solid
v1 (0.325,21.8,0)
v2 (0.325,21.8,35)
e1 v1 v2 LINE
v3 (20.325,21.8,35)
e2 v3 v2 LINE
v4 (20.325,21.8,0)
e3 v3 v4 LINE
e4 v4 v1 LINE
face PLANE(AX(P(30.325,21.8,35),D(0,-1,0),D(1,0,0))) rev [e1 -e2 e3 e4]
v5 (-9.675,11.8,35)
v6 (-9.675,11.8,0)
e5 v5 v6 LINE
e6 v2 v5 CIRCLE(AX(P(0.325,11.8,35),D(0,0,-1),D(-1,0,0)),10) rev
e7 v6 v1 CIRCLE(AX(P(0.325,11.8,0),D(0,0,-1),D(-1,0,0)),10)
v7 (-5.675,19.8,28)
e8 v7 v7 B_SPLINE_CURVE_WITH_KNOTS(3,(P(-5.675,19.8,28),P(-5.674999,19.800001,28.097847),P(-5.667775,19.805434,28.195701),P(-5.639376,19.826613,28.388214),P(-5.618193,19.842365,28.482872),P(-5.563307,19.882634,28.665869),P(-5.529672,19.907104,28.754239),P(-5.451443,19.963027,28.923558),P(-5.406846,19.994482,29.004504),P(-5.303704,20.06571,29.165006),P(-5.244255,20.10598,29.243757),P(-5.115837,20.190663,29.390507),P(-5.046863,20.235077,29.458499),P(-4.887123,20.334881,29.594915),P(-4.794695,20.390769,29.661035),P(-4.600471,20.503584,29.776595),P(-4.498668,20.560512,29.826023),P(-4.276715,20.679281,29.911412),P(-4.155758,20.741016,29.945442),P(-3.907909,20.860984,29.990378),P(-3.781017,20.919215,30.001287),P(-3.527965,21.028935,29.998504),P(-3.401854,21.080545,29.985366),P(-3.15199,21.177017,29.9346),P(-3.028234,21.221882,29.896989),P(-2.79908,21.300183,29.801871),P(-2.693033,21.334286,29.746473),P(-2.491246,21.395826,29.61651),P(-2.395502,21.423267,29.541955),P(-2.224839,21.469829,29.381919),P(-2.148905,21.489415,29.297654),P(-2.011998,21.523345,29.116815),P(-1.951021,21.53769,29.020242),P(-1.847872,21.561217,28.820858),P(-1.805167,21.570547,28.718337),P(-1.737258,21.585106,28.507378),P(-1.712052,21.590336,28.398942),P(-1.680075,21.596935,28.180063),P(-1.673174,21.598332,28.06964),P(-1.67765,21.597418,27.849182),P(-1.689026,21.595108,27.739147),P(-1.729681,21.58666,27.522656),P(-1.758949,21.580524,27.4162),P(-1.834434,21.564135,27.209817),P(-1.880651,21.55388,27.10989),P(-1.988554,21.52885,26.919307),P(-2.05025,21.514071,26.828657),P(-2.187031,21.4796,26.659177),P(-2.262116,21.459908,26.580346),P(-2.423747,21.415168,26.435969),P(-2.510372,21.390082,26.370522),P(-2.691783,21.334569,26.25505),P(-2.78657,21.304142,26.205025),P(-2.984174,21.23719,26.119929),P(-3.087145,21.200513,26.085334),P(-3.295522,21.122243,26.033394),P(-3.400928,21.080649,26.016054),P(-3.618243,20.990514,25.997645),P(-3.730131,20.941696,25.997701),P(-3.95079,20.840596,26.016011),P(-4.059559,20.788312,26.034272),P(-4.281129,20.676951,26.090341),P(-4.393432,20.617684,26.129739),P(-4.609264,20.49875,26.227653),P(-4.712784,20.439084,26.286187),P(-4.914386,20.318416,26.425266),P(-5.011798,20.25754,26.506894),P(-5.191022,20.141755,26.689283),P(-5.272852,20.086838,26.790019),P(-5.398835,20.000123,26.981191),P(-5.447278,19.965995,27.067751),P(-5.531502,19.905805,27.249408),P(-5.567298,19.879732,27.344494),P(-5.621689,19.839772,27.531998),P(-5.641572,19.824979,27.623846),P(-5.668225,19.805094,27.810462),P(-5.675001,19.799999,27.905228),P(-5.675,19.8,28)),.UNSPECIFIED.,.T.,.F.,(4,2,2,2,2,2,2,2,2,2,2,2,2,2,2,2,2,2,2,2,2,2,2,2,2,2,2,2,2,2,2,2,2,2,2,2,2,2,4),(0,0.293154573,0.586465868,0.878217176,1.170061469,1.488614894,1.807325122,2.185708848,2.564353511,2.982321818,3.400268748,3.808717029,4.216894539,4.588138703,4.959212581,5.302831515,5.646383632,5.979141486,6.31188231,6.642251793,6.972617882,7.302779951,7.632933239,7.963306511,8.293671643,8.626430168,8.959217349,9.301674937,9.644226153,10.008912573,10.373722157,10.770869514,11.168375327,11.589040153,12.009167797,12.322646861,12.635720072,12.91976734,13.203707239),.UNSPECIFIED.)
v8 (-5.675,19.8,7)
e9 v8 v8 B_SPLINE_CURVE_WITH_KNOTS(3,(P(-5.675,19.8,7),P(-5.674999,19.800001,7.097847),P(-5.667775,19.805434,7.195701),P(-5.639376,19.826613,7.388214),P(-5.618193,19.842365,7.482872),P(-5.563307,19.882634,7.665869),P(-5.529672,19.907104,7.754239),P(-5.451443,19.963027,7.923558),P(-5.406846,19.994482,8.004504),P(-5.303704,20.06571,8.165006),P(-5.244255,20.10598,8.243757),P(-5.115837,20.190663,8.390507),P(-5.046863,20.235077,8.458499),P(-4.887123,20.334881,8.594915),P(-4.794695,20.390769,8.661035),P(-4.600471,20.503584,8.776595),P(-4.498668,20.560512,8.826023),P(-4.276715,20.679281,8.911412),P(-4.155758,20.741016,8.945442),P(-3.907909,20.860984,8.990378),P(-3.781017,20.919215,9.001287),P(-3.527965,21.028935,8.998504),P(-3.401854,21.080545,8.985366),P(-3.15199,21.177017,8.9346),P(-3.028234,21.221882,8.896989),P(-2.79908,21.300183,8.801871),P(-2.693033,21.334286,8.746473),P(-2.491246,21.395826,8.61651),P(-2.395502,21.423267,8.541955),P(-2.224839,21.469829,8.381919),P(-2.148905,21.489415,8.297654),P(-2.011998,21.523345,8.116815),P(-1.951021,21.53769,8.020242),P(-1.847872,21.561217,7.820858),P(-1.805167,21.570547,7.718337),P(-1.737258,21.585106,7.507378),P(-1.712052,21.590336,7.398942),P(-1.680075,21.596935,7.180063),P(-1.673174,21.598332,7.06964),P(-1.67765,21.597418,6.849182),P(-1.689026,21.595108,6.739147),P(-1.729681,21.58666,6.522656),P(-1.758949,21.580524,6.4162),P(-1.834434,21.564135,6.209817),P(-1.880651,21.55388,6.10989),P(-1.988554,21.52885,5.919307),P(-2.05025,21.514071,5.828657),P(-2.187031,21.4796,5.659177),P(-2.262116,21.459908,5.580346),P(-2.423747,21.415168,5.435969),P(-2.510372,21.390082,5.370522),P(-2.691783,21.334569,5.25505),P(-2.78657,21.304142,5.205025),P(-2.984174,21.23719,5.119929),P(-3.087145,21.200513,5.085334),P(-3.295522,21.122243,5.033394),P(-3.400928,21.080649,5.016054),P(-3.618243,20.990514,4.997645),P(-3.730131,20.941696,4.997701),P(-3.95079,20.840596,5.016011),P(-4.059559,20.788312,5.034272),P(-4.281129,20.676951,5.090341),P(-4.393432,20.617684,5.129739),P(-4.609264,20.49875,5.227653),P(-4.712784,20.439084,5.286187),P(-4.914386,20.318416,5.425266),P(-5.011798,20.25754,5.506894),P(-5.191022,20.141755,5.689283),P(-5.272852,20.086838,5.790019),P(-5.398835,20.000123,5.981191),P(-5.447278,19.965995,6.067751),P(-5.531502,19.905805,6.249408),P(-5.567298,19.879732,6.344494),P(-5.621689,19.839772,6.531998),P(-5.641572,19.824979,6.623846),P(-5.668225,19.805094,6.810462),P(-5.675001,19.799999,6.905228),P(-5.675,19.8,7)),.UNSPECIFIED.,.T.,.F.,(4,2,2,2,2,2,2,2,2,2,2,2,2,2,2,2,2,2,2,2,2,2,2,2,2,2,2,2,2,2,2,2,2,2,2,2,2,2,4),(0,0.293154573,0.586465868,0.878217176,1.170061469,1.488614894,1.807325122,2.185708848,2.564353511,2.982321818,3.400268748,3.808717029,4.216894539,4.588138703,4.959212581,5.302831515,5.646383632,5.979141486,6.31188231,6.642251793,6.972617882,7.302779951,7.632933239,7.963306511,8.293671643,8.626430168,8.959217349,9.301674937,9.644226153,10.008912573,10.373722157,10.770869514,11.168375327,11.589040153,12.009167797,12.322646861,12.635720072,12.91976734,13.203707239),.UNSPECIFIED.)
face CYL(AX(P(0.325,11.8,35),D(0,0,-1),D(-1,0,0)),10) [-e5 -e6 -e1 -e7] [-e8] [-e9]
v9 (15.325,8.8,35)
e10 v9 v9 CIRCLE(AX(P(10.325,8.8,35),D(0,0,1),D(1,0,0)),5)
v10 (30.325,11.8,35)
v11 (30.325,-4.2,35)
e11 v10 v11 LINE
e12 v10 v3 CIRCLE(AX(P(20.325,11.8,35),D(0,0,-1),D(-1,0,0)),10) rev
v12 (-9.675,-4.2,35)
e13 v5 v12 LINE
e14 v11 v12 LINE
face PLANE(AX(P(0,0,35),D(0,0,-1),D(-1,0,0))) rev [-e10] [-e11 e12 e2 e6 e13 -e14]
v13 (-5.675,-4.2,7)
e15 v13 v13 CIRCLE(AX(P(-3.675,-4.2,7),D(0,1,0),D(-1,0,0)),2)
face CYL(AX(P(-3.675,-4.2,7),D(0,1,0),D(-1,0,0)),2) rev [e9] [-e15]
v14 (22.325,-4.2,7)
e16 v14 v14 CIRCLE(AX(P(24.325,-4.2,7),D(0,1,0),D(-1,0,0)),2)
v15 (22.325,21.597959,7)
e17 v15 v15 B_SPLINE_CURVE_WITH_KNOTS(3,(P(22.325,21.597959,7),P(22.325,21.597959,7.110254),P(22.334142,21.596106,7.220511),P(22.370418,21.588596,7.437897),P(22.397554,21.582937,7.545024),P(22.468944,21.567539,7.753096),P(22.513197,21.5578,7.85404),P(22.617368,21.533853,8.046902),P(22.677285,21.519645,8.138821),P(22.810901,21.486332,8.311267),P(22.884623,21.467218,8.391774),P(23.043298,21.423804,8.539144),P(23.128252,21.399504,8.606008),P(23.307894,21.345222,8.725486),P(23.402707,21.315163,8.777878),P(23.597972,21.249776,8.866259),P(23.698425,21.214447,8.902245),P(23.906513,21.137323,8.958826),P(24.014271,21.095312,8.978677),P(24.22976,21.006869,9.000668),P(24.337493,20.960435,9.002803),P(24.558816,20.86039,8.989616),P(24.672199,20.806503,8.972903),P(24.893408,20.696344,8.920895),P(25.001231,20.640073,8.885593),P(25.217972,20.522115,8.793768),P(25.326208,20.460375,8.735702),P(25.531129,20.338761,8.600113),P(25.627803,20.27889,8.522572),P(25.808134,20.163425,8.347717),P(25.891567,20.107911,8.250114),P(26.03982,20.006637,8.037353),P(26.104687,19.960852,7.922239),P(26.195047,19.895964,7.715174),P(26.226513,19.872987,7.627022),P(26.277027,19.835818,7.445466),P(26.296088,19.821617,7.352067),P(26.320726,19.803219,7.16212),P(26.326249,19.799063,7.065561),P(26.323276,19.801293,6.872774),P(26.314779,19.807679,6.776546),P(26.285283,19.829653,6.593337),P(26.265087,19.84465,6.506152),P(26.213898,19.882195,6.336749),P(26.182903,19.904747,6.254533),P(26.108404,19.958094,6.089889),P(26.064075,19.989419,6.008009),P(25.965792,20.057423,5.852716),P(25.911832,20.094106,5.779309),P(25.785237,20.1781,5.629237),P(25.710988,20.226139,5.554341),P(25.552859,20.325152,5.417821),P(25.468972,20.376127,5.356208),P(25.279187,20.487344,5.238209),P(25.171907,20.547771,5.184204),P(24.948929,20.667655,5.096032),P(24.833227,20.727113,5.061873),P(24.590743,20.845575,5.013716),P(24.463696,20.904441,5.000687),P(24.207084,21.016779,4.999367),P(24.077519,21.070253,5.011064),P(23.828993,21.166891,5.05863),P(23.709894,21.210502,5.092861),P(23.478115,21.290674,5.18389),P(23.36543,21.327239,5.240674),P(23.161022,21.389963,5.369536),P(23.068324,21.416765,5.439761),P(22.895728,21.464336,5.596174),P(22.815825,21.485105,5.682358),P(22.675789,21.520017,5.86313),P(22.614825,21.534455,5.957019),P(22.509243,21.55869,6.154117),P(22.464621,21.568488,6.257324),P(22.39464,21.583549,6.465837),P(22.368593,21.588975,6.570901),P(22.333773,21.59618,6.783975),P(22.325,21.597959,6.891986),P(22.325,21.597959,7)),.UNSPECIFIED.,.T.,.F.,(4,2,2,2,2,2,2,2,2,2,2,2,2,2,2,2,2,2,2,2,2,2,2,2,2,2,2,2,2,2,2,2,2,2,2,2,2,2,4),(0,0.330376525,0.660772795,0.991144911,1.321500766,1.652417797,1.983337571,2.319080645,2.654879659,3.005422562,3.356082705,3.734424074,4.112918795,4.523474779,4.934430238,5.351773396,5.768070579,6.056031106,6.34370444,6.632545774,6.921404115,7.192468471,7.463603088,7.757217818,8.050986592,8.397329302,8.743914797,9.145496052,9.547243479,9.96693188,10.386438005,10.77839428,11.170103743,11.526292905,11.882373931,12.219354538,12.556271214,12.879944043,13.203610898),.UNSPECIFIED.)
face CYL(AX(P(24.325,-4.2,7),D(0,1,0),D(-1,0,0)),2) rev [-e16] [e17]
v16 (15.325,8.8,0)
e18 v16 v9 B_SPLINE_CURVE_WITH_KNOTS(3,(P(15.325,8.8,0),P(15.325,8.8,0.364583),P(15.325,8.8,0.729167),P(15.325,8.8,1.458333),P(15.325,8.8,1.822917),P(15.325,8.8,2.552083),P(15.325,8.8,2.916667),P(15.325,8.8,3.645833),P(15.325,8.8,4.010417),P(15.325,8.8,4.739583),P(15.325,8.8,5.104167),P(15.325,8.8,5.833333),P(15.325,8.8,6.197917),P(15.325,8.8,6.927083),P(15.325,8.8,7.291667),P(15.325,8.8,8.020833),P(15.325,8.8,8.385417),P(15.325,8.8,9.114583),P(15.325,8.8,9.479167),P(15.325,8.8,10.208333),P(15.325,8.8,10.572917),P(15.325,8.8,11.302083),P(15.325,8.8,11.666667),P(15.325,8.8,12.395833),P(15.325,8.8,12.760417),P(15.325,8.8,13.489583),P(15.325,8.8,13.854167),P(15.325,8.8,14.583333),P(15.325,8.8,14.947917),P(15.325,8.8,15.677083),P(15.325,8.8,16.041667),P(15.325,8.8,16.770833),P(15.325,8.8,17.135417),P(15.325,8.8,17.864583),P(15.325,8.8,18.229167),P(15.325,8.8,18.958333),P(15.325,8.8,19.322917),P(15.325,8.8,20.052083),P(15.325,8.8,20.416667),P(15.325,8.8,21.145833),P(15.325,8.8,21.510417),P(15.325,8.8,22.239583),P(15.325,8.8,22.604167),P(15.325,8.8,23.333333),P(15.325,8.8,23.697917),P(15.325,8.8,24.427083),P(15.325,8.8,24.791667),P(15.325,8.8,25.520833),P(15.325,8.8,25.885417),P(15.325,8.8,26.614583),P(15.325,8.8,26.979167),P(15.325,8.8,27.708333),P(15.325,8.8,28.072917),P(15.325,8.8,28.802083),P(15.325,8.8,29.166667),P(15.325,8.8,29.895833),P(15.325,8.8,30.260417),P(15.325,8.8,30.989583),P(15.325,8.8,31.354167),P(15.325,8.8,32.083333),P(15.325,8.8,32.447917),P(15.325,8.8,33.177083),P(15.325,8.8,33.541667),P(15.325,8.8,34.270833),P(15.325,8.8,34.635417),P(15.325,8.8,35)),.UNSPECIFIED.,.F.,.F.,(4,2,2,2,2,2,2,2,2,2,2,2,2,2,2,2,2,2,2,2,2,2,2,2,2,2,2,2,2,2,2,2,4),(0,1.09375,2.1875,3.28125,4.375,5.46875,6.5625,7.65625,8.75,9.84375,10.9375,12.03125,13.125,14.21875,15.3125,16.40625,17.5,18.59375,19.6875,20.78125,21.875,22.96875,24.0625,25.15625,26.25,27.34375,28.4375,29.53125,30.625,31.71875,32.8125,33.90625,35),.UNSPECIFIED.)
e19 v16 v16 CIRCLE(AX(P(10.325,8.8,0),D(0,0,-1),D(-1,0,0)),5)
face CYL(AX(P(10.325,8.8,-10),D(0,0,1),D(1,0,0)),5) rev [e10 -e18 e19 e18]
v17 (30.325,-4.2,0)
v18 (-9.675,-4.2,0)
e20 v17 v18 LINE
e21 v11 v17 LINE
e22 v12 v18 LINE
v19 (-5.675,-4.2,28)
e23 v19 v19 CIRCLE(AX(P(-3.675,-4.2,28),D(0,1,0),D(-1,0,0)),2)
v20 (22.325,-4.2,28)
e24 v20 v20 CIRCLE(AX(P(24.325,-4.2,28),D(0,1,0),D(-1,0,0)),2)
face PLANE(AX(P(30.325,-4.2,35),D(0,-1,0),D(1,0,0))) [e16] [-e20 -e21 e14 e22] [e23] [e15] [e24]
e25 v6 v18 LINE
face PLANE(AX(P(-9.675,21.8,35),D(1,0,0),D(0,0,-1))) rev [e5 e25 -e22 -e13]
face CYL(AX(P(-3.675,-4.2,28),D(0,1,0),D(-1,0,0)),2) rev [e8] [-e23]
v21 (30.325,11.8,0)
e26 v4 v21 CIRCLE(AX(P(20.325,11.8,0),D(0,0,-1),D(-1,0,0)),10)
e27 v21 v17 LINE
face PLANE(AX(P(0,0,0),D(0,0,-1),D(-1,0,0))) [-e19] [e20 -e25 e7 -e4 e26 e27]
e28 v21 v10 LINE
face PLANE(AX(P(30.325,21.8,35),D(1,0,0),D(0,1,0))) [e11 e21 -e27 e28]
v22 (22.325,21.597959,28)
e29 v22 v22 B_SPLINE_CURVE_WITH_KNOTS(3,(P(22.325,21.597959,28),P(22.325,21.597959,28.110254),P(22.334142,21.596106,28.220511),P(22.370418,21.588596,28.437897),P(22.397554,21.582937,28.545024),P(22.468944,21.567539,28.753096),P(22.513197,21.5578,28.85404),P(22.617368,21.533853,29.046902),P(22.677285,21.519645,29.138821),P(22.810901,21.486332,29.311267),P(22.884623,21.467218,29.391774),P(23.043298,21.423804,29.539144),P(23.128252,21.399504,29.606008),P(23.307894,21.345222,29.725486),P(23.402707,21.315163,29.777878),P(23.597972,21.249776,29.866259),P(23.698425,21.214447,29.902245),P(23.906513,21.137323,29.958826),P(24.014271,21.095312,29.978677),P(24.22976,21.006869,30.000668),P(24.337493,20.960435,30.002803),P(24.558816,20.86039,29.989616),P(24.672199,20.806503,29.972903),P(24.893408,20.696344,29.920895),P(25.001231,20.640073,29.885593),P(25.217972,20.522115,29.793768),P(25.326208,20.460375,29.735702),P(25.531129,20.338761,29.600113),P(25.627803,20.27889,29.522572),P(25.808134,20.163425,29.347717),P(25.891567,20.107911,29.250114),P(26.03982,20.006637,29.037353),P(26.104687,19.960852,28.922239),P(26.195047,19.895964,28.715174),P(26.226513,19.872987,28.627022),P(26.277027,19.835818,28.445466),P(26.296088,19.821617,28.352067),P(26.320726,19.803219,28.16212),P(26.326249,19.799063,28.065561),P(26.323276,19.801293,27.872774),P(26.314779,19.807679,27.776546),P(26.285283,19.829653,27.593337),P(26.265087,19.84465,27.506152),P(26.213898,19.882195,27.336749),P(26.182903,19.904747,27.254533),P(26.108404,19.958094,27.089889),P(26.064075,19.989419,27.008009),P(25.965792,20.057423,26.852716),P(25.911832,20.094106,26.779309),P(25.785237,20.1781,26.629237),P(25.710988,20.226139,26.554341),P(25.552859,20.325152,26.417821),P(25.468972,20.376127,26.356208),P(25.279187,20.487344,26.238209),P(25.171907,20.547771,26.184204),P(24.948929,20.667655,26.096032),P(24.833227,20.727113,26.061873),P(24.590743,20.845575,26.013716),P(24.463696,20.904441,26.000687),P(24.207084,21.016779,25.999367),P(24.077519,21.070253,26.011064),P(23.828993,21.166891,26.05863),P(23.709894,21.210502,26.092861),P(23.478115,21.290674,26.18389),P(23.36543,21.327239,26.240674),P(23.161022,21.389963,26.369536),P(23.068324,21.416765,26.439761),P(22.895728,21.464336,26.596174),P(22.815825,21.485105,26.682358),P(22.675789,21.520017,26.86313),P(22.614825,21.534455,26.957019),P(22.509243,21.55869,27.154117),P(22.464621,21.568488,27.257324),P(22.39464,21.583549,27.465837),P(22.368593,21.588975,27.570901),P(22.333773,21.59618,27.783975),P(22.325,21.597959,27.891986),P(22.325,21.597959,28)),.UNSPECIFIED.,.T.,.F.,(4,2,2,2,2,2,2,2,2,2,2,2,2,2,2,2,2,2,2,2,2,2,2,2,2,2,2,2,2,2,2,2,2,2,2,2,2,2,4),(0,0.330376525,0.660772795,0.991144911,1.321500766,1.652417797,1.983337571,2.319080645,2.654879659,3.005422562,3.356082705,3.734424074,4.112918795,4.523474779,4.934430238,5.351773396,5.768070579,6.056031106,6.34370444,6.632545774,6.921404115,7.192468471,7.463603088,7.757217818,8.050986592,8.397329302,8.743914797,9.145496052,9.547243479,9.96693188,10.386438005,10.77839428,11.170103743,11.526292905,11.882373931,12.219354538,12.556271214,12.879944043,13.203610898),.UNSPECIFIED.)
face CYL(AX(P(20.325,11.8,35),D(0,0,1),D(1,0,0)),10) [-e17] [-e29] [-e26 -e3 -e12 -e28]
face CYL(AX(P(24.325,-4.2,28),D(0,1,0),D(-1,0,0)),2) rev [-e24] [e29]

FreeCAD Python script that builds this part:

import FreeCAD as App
import Part
import Sketcher


def edges_at(feature, points):
    """Names of the edges that pass closest to the given points."""
    edges = feature.Shape.Edges
    near = lambda p: min(range(len(edges)), key=lambda i: edges[i].distToShape(Part.Vertex(*p))[0])
    return sorted({f"Edge{near(p) + 1}" for p in points})


def add_polygon(sketch, points):
    """Adds a closed chain of lines whose ends are joined by coincident constraints."""
    first, n = sketch.GeometryCount, len(points)
    for a, b in zip(points, points[1:] + points[:1]):
        sketch.addGeometry(Part.LineSegment(App.Vector(*a, 0), App.Vector(*b, 0)), False)
    for i in range(n):
        sketch.addConstraint(Sketcher.Constraint("Coincident", first + i, 2, first + (i + 1) % n, 1))

doc = App.newDocument("Part")
body = doc.addObject("PartDesign::Body", "Body")

# Sketch on XY plane
sketch1 = body.newObject("Sketcher::SketchObject", "Sketch")
sketch1.AttachmentSupport = (doc.getObject("XY_Plane"), [""])
sketch1.MapMode = "FlatFace"
add_polygon(sketch1, [(-10, 22), (-10, -4), (30, -4), (30, 22)])  # lines 0-3
sketch1.addConstraint(Sketcher.Constraint("Vertical", 0))
sketch1.addConstraint(Sketcher.Constraint("Horizontal", 1))
sketch1.addConstraint(Sketcher.Constraint("Vertical", 2))
sketch1.addConstraint(Sketcher.Constraint("Horizontal", 3))
sketch1.addConstraint(Sketcher.Constraint("DistanceX", 1, 1, 1, 2, 40.0))
sketch1.addConstraint(Sketcher.Constraint("DistanceY", 0, 2, 0, 1, 26.0))
sketch1.addConstraint(Sketcher.Constraint("DistanceY", 0, 2, -1, 1, 4.2))
sketch1.addConstraint(Sketcher.Constraint("DistanceX", 0, 2, -1, 1, 9.675))
pad1 = body.newObject("PartDesign::Pad", "Pad")
pad1.Profile = sketch1
pad1.Length = 35

# Sketch on XY plane
sketch2 = body.newObject("Sketcher::SketchObject", "Sketch001")
sketch2.AttachmentSupport = (doc.getObject("XY_Plane"), [""])
sketch2.MapMode = "FlatFace"
sketch2.AttachmentOffset = App.Placement(App.Vector(0, 0, 35), App.Rotation())
sketch2.addGeometry(Part.Circle(App.Vector(10, 9, 0), App.Vector(0, 0, 1), 5), False)
sketch2.addConstraint(Sketcher.Constraint("Diameter", 0, 10.0))
sketch2.addConstraint(Sketcher.Constraint("DistanceY", -1, 1, 0, 3, 8.8))
sketch2.addConstraint(Sketcher.Constraint("DistanceX", -1, 1, 0, 3, 10.325))
pocket1 = body.newObject("PartDesign::Pocket", "Pocket")
pocket1.Profile = sketch2
pocket1.Length = 45
doc.recompute()

fillet = body.newObject("PartDesign::Fillet", "Fillet")
fillet.Base = (pocket1, edges_at(pocket1, [(30.325, 21.8, 17.5), (-9.675, 21.8, 17.5)]))
fillet.Radius = 10

# Sketch on XZ plane
sketch3 = body.newObject("Sketcher::SketchObject", "Sketch002")
sketch3.AttachmentSupport = (doc.getObject("XZ_Plane"), [""])
sketch3.MapMode = "FlatFace"
sketch3.AttachmentOffset = App.Placement(App.Vector(0, 0, -21.8), App.Rotation())
sketch3.addGeometry(Part.Circle(App.Vector(-3.7, 7, 0), App.Vector(0, 0, 1), 2), False)
sketch3.addGeometry(Part.Circle(App.Vector(24.3, 7, 0), App.Vector(0, 0, 1), 2), False)
sketch3.addGeometry(Part.Circle(App.Vector(-3.7, 28, 0), App.Vector(0, 0, 1), 2), False)
sketch3.addGeometry(Part.Circle(App.Vector(24.3, 28, 0), App.Vector(0, 0, 1), 2), False)
sketch3.addConstraint(Sketcher.Constraint("Equal", 0, 1))
sketch3.addConstraint(Sketcher.Constraint("Equal", 1, 2))
sketch3.addConstraint(Sketcher.Constraint("Equal", 2, 3))
sketch3.addConstraint(Sketcher.Constraint("Horizontal", 0, 3, 1, 3))
sketch3.addConstraint(Sketcher.Constraint("Horizontal", 2, 3, 3, 3))
sketch3.addConstraint(Sketcher.Constraint("Vertical", 0, 3, 2, 3))
sketch3.addConstraint(Sketcher.Constraint("Vertical", 1, 3, 3, 3))
sketch3.addConstraint(Sketcher.Constraint("Diameter", 0, 4.0))
sketch3.addConstraint(Sketcher.Constraint("DistanceY", -1, 1, 0, 3, 7.0))
sketch3.addConstraint(Sketcher.Constraint("DistanceY", -1, 1, 2, 3, 28.0))
sketch3.addConstraint(Sketcher.Constraint("DistanceX", 0, 3, 1, 3, 28.0))
sketch3.addConstraint(Sketcher.Constraint("DistanceX", 0, 3, -1, 1, 3.675))
pocket2 = body.newObject("PartDesign::Pocket", "Pocket001")
pocket2.Profile = sketch3
pocket2.Length = 26
pocket2.Reversed = True

doc.recompute()
